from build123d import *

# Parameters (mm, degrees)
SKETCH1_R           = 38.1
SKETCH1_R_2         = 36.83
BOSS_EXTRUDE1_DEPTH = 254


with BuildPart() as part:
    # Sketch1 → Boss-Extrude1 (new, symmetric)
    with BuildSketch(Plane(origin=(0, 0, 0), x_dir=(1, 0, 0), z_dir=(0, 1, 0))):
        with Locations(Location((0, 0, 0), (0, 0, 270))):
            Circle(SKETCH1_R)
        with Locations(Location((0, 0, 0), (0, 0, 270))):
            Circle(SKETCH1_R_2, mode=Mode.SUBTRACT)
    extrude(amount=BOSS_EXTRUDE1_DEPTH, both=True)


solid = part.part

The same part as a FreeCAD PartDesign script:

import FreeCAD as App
import Part
import Sketcher

V = App.Vector
Q = App.Units.Quantity

doc = App.newDocument("Part")
params = doc.addObject("Spreadsheet::Sheet", "Params")
for row, (alias, value) in enumerate([
    ("sketch1_diameter", "3 in"),
    ("sketch1_diameter2", "2.9 in"),
    ("pad1_length", "20 in"),
], start=1):
    params.set(f"A{row}", alias)
    params.set(f"B{row}", "=" + value)
    params.setAlias(f"B{row}", alias)

body = doc.addObject("PartDesign::Body", "Body")

# Sketch on XZ plane
sketch1 = body.newObject("Sketcher::SketchObject", "Sketch")
sketch1.AttachmentSupport = (doc.getObject("XZ_Plane"), [""])
sketch1.MapMode = "FlatFace"
sketch1.addGeometry(Part.Circle(V(0, 0, 0), V(0, 0, 1), 38), False)
sketch1.addGeometry(Part.Circle(V(0, 0, 0), V(0, 0, 1), 37), False)
sketch1.addConstraint(Sketcher.Constraint("Coincident", 0, 3, -1, 1))
sketch1.addConstraint(Sketcher.Constraint("Coincident", 1, 3, -1, 1))
sketch1.addConstraint(Sketcher.Constraint("Diameter", 0, Q("3 in")))
sketch1.addConstraint(Sketcher.Constraint("Diameter", 1, Q("2.9 in")))
sketch1.setExpression("Constraints[2]", "Params.sketch1_diameter")
sketch1.setExpression("Constraints[3]", "Params.sketch1_diameter2")
pad1 = body.newObject("PartDesign::Pad", "Pad")
pad1.Profile = sketch1
pad1.setExpression("Length", "Params.pad1_length")
pad1.Midplane = True

doc.recompute()
